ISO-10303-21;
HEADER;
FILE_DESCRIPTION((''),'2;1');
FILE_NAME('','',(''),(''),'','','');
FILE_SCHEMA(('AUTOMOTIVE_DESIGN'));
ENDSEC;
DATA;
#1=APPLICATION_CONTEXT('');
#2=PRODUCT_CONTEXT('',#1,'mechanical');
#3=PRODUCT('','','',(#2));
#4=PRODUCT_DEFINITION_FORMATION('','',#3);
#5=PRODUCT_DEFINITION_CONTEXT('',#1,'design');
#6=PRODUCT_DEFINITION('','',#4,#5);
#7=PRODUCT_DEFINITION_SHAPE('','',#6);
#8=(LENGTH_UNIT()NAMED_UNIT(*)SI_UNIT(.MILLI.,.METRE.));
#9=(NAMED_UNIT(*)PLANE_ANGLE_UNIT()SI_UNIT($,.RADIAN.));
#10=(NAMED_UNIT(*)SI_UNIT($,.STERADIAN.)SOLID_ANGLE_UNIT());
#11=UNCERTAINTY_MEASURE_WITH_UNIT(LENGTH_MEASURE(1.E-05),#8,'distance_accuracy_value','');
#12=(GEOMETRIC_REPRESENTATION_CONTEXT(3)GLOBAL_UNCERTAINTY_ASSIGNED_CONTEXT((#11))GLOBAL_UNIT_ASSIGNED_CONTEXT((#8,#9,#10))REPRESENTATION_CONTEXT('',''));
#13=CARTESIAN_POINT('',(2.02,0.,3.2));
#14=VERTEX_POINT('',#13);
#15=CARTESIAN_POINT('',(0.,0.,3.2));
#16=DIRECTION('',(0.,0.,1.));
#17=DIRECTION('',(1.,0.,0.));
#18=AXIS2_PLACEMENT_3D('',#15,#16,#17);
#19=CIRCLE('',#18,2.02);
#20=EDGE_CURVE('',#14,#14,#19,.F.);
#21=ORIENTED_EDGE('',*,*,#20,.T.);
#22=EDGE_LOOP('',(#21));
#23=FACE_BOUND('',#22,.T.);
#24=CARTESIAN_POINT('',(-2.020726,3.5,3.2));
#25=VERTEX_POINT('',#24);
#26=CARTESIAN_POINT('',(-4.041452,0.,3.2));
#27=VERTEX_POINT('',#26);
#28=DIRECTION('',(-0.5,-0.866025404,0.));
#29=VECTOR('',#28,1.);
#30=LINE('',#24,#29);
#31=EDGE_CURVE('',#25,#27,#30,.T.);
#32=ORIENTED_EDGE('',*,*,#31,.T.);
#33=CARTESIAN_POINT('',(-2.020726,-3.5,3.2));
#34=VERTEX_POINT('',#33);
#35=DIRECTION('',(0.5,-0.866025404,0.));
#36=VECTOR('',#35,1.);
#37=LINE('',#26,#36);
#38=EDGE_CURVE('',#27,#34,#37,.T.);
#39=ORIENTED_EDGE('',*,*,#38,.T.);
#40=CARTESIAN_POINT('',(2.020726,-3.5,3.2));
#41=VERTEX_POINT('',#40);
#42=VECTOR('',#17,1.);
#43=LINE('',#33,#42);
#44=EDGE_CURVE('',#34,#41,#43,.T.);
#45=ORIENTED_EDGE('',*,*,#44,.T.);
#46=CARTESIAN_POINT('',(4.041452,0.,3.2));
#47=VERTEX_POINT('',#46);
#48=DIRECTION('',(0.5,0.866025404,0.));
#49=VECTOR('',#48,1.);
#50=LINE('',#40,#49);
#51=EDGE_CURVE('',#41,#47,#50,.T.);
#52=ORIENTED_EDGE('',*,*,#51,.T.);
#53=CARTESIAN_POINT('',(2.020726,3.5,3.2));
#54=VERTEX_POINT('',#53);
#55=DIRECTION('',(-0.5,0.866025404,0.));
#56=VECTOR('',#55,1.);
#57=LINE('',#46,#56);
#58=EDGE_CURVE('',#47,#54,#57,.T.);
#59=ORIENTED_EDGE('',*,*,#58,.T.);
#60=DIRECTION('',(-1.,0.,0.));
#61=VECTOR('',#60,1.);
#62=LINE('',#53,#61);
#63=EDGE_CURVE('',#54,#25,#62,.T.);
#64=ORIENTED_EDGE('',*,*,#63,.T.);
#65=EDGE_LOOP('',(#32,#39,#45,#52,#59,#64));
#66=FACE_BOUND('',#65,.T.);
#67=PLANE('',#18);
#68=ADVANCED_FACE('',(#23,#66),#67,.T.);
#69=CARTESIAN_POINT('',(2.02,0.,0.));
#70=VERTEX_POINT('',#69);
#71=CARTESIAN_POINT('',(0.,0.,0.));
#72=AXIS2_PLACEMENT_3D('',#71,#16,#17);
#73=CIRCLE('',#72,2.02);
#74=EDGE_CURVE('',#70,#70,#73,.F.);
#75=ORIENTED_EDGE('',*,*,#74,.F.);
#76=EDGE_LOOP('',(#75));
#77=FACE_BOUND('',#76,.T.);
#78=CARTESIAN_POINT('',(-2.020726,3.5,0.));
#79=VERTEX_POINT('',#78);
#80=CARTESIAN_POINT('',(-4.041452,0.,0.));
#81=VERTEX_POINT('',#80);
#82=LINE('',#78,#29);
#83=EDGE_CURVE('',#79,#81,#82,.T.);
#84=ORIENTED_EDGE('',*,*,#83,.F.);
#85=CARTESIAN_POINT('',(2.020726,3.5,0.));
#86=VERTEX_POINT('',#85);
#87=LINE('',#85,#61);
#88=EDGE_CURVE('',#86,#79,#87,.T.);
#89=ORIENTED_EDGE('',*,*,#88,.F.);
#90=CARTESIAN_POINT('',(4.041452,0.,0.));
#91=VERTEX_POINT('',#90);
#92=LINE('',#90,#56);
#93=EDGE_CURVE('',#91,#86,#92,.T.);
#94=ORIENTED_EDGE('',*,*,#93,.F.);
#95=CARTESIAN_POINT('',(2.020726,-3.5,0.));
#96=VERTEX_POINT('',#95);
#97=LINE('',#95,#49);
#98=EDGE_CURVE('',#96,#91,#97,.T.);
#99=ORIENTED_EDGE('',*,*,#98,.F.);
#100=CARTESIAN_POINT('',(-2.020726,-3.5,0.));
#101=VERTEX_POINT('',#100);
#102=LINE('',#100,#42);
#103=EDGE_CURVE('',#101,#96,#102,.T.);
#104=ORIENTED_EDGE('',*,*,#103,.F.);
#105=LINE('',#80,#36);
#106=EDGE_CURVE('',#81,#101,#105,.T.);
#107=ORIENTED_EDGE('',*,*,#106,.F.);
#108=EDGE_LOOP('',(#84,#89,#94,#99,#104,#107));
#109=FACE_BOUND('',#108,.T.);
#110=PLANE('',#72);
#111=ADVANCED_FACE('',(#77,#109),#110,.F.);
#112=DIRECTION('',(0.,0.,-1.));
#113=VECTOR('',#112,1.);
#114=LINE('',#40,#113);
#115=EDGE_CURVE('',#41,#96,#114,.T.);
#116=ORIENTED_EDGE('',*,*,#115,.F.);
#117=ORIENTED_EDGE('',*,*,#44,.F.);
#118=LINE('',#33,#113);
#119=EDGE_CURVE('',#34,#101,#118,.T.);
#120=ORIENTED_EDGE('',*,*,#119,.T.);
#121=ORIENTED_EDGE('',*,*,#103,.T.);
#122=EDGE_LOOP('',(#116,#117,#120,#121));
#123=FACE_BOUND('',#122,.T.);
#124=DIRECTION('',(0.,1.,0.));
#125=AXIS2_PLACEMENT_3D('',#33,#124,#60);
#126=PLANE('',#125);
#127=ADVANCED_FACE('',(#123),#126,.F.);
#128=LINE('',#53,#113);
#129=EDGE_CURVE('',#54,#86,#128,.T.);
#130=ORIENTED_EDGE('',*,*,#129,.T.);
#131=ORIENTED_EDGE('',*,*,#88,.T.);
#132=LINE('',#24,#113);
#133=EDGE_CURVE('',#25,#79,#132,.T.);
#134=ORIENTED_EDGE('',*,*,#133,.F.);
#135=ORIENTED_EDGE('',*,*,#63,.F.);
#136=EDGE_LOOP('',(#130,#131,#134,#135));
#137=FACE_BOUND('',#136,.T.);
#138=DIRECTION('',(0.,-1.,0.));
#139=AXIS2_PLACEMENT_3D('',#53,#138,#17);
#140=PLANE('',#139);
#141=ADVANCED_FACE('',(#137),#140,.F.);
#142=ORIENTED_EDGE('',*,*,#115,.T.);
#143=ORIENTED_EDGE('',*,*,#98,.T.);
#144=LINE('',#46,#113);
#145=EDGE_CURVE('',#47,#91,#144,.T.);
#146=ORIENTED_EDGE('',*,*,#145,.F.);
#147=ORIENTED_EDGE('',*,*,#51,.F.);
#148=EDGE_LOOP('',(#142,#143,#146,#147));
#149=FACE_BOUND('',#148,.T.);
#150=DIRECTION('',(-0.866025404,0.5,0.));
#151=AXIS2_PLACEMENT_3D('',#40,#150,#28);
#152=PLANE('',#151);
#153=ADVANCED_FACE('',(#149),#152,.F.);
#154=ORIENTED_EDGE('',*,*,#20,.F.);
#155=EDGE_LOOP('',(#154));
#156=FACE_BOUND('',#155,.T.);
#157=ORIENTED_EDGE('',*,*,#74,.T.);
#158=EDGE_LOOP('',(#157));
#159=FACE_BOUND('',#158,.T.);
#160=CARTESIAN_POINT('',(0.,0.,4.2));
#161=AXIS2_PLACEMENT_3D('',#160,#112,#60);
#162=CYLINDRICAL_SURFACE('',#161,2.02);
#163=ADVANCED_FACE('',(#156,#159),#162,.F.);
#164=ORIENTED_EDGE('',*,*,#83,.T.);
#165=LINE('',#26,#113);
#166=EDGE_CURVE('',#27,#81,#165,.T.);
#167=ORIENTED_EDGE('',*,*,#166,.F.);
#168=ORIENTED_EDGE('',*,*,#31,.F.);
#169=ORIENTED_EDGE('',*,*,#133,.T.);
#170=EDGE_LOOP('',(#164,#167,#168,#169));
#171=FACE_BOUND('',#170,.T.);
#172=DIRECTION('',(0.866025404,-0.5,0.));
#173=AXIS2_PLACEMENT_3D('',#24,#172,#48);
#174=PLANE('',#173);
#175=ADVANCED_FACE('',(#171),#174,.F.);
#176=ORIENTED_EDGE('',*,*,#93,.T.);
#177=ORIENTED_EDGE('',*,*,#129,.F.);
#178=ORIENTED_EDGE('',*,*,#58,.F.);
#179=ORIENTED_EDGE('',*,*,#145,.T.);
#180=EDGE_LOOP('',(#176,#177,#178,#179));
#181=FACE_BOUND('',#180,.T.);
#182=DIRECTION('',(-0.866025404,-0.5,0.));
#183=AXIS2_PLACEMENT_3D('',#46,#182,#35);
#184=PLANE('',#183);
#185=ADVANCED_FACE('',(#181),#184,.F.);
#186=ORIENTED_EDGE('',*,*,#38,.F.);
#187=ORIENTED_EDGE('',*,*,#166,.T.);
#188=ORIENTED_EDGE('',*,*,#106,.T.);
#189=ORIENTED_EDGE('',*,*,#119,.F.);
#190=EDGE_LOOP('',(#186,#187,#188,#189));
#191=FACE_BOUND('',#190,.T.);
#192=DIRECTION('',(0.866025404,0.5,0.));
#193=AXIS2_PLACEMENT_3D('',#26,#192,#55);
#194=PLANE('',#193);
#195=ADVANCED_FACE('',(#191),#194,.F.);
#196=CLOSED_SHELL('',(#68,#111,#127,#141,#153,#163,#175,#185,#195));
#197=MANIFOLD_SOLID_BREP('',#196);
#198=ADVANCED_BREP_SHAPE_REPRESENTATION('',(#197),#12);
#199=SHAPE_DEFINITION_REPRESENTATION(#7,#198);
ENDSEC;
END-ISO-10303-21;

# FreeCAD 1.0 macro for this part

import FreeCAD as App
import Part
import Sketcher
Q = App.Units.Quantity

doc = App.newDocument("Part")
body = doc.addObject("PartDesign::Body", "Body")

# Sketch on XY plane
sketch1 = body.newObject("Sketcher::SketchObject", "Sketch")
sketch1.AttachmentSupport = (doc.getObject("XY_Plane"), [""])
sketch1.MapMode = "FlatFace"
sketch1.addGeometry([
    Part.LineSegment(App.Vector(4, 0, 0), App.Vector(2, 3.5, 0)),  # 0
    Part.LineSegment(App.Vector(2, 3.5, 0), App.Vector(-2, 3.5, 0)),  # 1
    Part.LineSegment(App.Vector(-2, 3.5, 0), App.Vector(-4, 0, 0)),  # 2
    Part.LineSegment(App.Vector(-4, 0, 0), App.Vector(-2, -3.5, 0)),  # 3
    Part.LineSegment(App.Vector(-2, -3.5, 0), App.Vector(2, -3.5, 0)),  # 4
    Part.LineSegment(App.Vector(2, -3.5, 0), App.Vector(4, 0, 0)),  # 5
], False)
sketch1.addConstraint([
    Sketcher.Constraint("Coincident", 0, 2, 1, 1),
    Sketcher.Constraint("Coincident", 1, 2, 2, 1),
    Sketcher.Constraint("Coincident", 2, 2, 3, 1),
    Sketcher.Constraint("Coincident", 3, 2, 4, 1),
    Sketcher.Constraint("Coincident", 4, 2, 5, 1),
    Sketcher.Constraint("Coincident", 5, 2, 0, 1),
    Sketcher.Constraint("Horizontal", 1),
    Sketcher.Constraint("Horizontal", 4),
    Sketcher.Constraint("Symmetric", 0, 2, 3, 2, -1, 1),
    Sketcher.Constraint("Symmetric", 2, 2, 5, 2, -1, 1),
    Sketcher.Constraint("PointOnObject", 2, 2, -1),
    Sketcher.Constraint("Parallel", 2, 5),
    Sketcher.Constraint("Vertical", 1, 2, 3, 2),
    Sketcher.Constraint("Angle", 0, Q("120 deg")),
    Sketcher.Constraint("DistanceY", 3, 2, 1, 2, Q("7 mm")),
    Sketcher.Constraint("DistanceX", 1, 2, 1, 1, Q("4.041452 mm")),
])
pad1 = body.newObject("PartDesign::Pad", "Pad")
pad1.Profile = sketch1
pad1.Length = 3.2

# Sketch on XY plane
sketch2 = body.newObject("Sketcher::SketchObject", "Sketch001")
sketch2.AttachmentSupport = (doc.getObject("XY_Plane"), [""])
sketch2.MapMode = "FlatFace"
sketch2.AttachmentOffset = App.Placement(App.Vector(0, 0, -1), App.Rotation())
sketch2.addGeometry(Part.Circle(App.Vector(0, 0, 0), App.Vector(0, 0, 1), 2), False)
sketch2.addConstraint([
    Sketcher.Constraint("Coincident", 0, 3, -1, 1),
    Sketcher.Constraint("Diameter", 0, Q("4.04 mm")),
])
pocket1 = body.newObject("PartDesign::Pocket", "Pocket")
pocket1.Profile = sketch2
pocket1.Length = 5.2
pocket1.Reversed = True

doc.recompute()
